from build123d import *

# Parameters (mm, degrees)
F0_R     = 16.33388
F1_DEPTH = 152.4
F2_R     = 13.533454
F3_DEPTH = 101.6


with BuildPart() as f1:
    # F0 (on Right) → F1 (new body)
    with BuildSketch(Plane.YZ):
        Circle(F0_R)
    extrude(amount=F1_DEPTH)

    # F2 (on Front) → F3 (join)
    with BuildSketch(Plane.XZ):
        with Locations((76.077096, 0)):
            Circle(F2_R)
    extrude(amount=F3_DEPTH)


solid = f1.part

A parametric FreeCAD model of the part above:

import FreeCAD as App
import Part
import Sketcher
Q = App.Units.Quantity

doc = App.newDocument("Part")
body = doc.addObject("PartDesign::Body", "Body")

# Sketch on YZ plane
sketch1 = body.newObject("Sketcher::SketchObject", "Sketch")
sketch1.AttachmentSupport = (doc.getObject("YZ_Plane"), [""])
sketch1.MapMode = "FlatFace"
sketch1.addGeometry(Part.Circle(App.Vector(0, 0, 0), App.Vector(0, 0, 1), 16), False)
sketch1.addConstraint([
    Sketcher.Constraint("Coincident", 0, 3, -1, 1),
    Sketcher.Constraint("Diameter", 0, 32.66776),
])
pad1 = body.newObject("PartDesign::Pad", "Pad")
pad1.Profile = sketch1
pad1.Length = Q("6 in")

# Sketch on XZ plane
sketch2 = body.newObject("Sketcher::SketchObject", "Sketch001")
sketch2.AttachmentSupport = (doc.getObject("XZ_Plane"), [""])
sketch2.MapMode = "FlatFace"
sketch2.addGeometry(Part.Circle(App.Vector(76, 0, 0), App.Vector(0, 0, 1), 14), False)
sketch2.addConstraint([
    Sketcher.Constraint("PointOnObject", 0, 3, -1),
    Sketcher.Constraint("Diameter", 0, 27.066908),
    Sketcher.Constraint("DistanceX", -1, 1, 0, 3, 76.077096),
])
pad2 = body.newObject("PartDesign::Pad", "Pad001")
pad2.Profile = sketch2
pad2.Length = Q("4 in")

doc.recompute()
